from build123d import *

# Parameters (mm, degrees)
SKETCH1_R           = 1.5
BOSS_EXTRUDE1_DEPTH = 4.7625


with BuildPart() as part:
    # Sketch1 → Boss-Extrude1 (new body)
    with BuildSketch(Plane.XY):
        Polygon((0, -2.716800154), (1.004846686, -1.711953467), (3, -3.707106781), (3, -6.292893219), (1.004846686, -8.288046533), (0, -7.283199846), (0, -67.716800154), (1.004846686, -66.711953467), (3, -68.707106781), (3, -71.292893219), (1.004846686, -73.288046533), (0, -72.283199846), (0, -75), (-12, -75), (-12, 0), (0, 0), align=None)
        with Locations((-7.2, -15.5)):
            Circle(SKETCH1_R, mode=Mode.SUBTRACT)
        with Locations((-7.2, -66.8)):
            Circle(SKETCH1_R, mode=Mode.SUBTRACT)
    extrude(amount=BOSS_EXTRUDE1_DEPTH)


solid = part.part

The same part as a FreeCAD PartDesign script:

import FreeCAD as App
import Part
import Sketcher

V = App.Vector
Q = App.Units.Quantity

doc = App.newDocument("Part")
body = doc.addObject("PartDesign::Body", "Body")

# Sketch on XY plane
sketch1 = body.newObject("Sketcher::SketchObject", "Sketch")
sketch1.AttachmentSupport = (doc.getObject("XY_Plane"), [""])
sketch1.MapMode = "FlatFace"
sketch1.addGeometry(Part.LineSegment(V(1, -1.7, 0), V(0, -2.7, 0)), False)
sketch1.addGeometry(Part.LineSegment(V(0, -2.7, 0), V(0, 0, 0)), False)
sketch1.addGeometry(Part.LineSegment(V(0, 0, 0), V(-12, 0, 0)), False)
sketch1.addGeometry(Part.LineSegment(V(-12, 0, 0), V(-12, -75, 0)), False)
sketch1.addGeometry(Part.LineSegment(V(-12, -75, 0), V(0, -75, 0)), False)
sketch1.addGeometry(Part.LineSegment(V(0, -75, 0), V(0, -72.3, 0)), False)
sketch1.addGeometry(Part.LineSegment(V(0, -72.3, 0), V(1, -73.3, 0)), False)
sketch1.addGeometry(Part.LineSegment(V(1, -73.3, 0), V(3, -71.3, 0)), False)
sketch1.addGeometry(Part.LineSegment(V(3, -71.3, 0), V(3, -68.7, 0)), False)
sketch1.addGeometry(Part.LineSegment(V(3, -68.7, 0), V(1, -66.7, 0)), False)
sketch1.addGeometry(Part.LineSegment(V(1, -66.7, 0), V(0, -67.7, 0)), False)
sketch1.addGeometry(Part.LineSegment(V(0, -67.7, 0), V(0, -7.3, 0)), False)
sketch1.addGeometry(Part.LineSegment(V(0, -7.3, 0), V(1, -8.3, 0)), False)
sketch1.addGeometry(Part.LineSegment(V(1, -8.3, 0), V(3, -6.3, 0)), False)
sketch1.addGeometry(Part.LineSegment(V(3, -6.3, 0), V(3, -3.7, 0)), False)
sketch1.addGeometry(Part.LineSegment(V(3, -3.7, 0), V(1, -1.7, 0)), False)
sketch1.addGeometry(Part.Circle(V(-7.2, -66.8, 0), V(0, 0, 1), 1.5), False)
sketch1.addGeometry(Part.Circle(V(-7.2, -15.5, 0), V(0, 0, 1), 1.5), False)
sketch1.addConstraint(Sketcher.Constraint("Coincident", 0, 2, 1, 1))
sketch1.addConstraint(Sketcher.Constraint("Coincident", 1, 2, 2, 1))
sketch1.addConstraint(Sketcher.Constraint("Coincident", 2, 2, 3, 1))
sketch1.addConstraint(Sketcher.Constraint("Coincident", 3, 2, 4, 1))
sketch1.addConstraint(Sketcher.Constraint("Coincident", 4, 2, 5, 1))
sketch1.addConstraint(Sketcher.Constraint("Coincident", 5, 2, 6, 1))
sketch1.addConstraint(Sketcher.Constraint("Coincident", 6, 2, 7, 1))
sketch1.addConstraint(Sketcher.Constraint("Coincident", 7, 2, 8, 1))
sketch1.addConstraint(Sketcher.Constraint("Coincident", 8, 2, 9, 1))
sketch1.addConstraint(Sketcher.Constraint("Coincident", 9, 2, 10, 1))
sketch1.addConstraint(Sketcher.Constraint("Coincident", 10, 2, 11, 1))
sketch1.addConstraint(Sketcher.Constraint("Coincident", 11, 2, 12, 1))
sketch1.addConstraint(Sketcher.Constraint("Coincident", 12, 2, 13, 1))
sketch1.addConstraint(Sketcher.Constraint("Coincident", 13, 2, 14, 1))
sketch1.addConstraint(Sketcher.Constraint("Coincident", 14, 2, 15, 1))
sketch1.addConstraint(Sketcher.Constraint("Coincident", 15, 2, 0, 1))
sketch1.addConstraint(Sketcher.Constraint("Vertical", 1))
sketch1.addConstraint(Sketcher.Constraint("Horizontal", 2))
sketch1.addConstraint(Sketcher.Constraint("Vertical", 3))
sketch1.addConstraint(Sketcher.Constraint("Horizontal", 4))
sketch1.addConstraint(Sketcher.Constraint("Vertical", 5))
sketch1.addConstraint(Sketcher.Constraint("Vertical", 8))
sketch1.addConstraint(Sketcher.Constraint("Vertical", 11))
sketch1.addConstraint(Sketcher.Constraint("Vertical", 14))
sketch1.addConstraint(Sketcher.Constraint("Coincident", 1, 2, -1, 1))
sketch1.addConstraint(Sketcher.Constraint("Equal", 16, 17))
sketch1.addConstraint(Sketcher.Constraint("PointOnObject", 4, 2, -2))
sketch1.addConstraint(Sketcher.Constraint("PointOnObject", 10, 2, -2))
sketch1.addConstraint(Sketcher.Constraint("Perpendicular", 0, 6))
sketch1.addConstraint(Sketcher.Constraint("Perpendicular", 6, 7))
sketch1.addConstraint(Sketcher.Constraint("Perpendicular", 7, 9))
sketch1.addConstraint(Sketcher.Constraint("Perpendicular", 9, 10))
sketch1.addConstraint(Sketcher.Constraint("Perpendicular", 10, 12))
sketch1.addConstraint(Sketcher.Constraint("Perpendicular", 12, 13))
sketch1.addConstraint(Sketcher.Constraint("Perpendicular", 13, 15))
sketch1.addConstraint(Sketcher.Constraint("Vertical", 16, 3, 17, 3))
sketch1.addConstraint(Sketcher.Constraint("Vertical", 6, 2, 9, 2))
sketch1.addConstraint(Sketcher.Constraint("Vertical", 9, 2, 12, 2))
sketch1.addConstraint(Sketcher.Constraint("Vertical", 8, 2, 13, 2))
sketch1.addConstraint(Sketcher.Constraint("Vertical", 12, 2, 15, 2))
sketch1.addConstraint(Sketcher.Constraint("Equal", 1, 5))
sketch1.addConstraint(Sketcher.Constraint("Equal", 8, 14))
sketch1.addConstraint(Sketcher.Constraint("Equal", 0, 6))
sketch1.addConstraint(Sketcher.Constraint("Diameter", 16, Q("3 mm")))
sketch1.addConstraint(Sketcher.Constraint("DistanceX", 2, 2, 2, 1, Q("12 mm")))
sketch1.addConstraint(Sketcher.Constraint("DistanceY", 3, 2, 3, 1, Q("75 mm")))
sketch1.addConstraint(Sketcher.Constraint("DistanceX", -1, 1, 7, 2, Q("3 mm")))
sketch1.addConstraint(Sketcher.Constraint("DistanceX", 16, 3, -1, 1, Q("7.2 mm")))
sketch1.addConstraint(Sketcher.Constraint("DistanceY", 16, 3, -1, 1, Q("66.8 mm")))
sketch1.addConstraint(Sketcher.Constraint("DistanceY", 17, 3, -1, 1, Q("15.5 mm")))
sketch1.addConstraint(Sketcher.Constraint("DistanceY", 1, 1, 1, 2, Q("2.7168 mm")))
sketch1.addConstraint(Sketcher.Constraint("DistanceY", 11, 1, 11, 2, Q("60.4336 mm")))
sketch1.addConstraint(Sketcher.Constraint("DistanceY", 8, 1, 8, 2, Q("2.585786 mm")))
pad1 = body.newObject("PartDesign::Pad", "Pad")
pad1.Profile = sketch1
pad1.Length = 4.7625

doc.recompute()
